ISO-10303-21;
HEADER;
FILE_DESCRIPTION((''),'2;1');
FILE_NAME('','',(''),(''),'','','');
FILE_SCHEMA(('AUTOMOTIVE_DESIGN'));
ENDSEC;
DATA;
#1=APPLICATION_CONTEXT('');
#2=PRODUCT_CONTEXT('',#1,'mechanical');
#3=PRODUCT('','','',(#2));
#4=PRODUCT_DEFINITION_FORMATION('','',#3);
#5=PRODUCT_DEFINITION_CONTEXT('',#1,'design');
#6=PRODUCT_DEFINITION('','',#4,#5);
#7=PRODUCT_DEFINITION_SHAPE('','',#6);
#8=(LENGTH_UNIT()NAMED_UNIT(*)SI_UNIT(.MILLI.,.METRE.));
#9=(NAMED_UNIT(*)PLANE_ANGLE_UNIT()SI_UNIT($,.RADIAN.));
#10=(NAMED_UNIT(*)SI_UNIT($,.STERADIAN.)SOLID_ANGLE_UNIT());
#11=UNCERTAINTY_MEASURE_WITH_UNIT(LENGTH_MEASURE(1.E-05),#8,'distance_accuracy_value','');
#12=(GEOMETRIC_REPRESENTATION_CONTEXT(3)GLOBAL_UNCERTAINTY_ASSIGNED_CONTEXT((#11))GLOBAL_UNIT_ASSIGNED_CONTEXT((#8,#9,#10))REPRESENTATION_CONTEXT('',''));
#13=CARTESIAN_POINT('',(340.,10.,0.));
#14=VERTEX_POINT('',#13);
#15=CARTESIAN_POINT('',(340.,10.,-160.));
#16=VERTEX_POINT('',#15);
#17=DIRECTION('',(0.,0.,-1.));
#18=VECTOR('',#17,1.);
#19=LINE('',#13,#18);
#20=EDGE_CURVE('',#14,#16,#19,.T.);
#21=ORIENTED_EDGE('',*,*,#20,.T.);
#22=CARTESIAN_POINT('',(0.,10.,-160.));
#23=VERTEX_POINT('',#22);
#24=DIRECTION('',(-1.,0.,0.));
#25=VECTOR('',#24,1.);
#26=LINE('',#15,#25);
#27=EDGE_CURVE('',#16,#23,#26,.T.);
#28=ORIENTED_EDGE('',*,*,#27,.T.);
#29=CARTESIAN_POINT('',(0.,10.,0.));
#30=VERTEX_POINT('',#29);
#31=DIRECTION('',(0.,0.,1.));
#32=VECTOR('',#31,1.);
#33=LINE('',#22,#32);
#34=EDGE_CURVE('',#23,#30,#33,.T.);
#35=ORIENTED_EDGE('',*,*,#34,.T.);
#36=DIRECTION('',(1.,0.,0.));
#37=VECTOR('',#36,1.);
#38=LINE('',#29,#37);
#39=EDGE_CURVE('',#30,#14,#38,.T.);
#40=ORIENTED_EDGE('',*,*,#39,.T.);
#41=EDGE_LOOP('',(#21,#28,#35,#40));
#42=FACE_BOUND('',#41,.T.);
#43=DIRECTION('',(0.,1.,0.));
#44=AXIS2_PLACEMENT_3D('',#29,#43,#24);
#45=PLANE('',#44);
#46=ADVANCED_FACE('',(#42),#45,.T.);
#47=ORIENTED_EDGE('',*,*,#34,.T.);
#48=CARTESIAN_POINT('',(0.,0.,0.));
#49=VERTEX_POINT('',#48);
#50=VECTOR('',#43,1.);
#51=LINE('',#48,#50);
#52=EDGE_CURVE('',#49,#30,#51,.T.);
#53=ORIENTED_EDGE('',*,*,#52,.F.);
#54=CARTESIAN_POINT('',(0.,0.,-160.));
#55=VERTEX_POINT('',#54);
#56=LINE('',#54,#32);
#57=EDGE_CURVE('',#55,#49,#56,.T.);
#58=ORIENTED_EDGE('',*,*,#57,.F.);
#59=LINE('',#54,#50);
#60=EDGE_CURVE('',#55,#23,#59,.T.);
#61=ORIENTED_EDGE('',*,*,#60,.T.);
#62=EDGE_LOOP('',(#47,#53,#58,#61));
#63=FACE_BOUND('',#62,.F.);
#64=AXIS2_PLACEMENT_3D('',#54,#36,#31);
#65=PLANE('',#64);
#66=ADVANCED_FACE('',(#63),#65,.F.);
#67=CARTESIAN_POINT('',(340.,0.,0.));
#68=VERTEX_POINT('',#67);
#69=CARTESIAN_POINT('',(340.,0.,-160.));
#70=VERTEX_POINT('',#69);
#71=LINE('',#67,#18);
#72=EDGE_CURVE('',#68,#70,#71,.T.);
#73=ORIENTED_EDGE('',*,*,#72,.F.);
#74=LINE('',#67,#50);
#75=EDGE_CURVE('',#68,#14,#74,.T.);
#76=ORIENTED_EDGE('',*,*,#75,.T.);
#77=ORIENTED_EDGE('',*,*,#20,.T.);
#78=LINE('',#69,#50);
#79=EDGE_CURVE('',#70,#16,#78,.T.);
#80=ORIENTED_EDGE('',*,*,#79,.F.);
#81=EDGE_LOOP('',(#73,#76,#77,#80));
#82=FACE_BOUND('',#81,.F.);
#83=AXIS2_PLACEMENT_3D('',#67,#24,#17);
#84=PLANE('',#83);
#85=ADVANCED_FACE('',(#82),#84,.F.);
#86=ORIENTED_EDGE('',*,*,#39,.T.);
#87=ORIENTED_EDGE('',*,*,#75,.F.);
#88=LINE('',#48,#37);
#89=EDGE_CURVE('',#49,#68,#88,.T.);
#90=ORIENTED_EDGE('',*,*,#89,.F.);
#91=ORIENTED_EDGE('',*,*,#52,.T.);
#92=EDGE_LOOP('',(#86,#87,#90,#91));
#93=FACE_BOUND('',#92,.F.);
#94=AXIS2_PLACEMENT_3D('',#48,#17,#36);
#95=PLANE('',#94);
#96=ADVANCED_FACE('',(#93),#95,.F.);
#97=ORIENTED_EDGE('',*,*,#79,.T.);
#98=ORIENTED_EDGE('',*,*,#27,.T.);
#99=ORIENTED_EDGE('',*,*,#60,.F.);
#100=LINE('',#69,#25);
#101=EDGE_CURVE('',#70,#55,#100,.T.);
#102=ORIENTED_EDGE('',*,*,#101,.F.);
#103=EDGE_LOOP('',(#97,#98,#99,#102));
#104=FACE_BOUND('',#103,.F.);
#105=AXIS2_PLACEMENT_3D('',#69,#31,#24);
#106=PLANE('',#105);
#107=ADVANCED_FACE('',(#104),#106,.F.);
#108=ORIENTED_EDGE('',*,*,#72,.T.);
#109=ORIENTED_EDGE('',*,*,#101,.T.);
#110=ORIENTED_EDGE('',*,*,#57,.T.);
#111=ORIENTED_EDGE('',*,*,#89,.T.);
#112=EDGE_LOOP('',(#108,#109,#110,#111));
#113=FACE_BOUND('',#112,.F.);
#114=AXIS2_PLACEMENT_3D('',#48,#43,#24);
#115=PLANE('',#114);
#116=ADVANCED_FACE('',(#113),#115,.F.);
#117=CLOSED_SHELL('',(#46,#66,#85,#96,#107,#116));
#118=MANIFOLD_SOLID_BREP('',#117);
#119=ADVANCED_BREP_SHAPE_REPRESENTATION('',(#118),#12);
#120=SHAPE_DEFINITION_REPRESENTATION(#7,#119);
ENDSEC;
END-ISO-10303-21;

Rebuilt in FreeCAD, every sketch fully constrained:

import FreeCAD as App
import Part
import Sketcher

V = App.Vector
Q = App.Units.Quantity


def add_polygon(sketch, points):
    """Adds a closed chain of lines whose ends are joined by coincident constraints."""
    first, n = sketch.GeometryCount, len(points)
    for a, b in zip(points, points[1:] + points[:1]):
        sketch.addGeometry(Part.LineSegment(App.Vector(*a, 0), App.Vector(*b, 0)), False)
    for i in range(n):
        sketch.addConstraint(Sketcher.Constraint("Coincident", first + i, 2, first + (i + 1) % n, 1))

doc = App.newDocument("Part")
body = doc.addObject("PartDesign::Body", "Body")

sketch1 = body.newObject("Sketcher::SketchObject", "Sketch")
sketch1.AttachmentSupport = (doc.getObject("XZ_Plane"), [""])
sketch1.MapMode = "FlatFace"
add_polygon(sketch1, [(0, -160), (0, 0), (340, 0), (340, -160)])
sketch1.addConstraint([
    Sketcher.Constraint("Vertical", 0),
    Sketcher.Constraint("Horizontal", 1),
    Sketcher.Constraint("Vertical", 2),
    Sketcher.Constraint("Horizontal", 3),
    Sketcher.Constraint("Coincident", 0, 2, -1, 1),
    Sketcher.Constraint("DistanceX", 1, 1, 1, 2, Q("340 mm")),
    Sketcher.Constraint("DistanceY", 0, 1, 0, 2, Q("160 mm")),
])
pad1 = body.newObject("PartDesign::Pad", "Pad")
pad1.Profile = sketch1
pad1.Length = 10
pad1.Reversed = True

doc.recompute()
